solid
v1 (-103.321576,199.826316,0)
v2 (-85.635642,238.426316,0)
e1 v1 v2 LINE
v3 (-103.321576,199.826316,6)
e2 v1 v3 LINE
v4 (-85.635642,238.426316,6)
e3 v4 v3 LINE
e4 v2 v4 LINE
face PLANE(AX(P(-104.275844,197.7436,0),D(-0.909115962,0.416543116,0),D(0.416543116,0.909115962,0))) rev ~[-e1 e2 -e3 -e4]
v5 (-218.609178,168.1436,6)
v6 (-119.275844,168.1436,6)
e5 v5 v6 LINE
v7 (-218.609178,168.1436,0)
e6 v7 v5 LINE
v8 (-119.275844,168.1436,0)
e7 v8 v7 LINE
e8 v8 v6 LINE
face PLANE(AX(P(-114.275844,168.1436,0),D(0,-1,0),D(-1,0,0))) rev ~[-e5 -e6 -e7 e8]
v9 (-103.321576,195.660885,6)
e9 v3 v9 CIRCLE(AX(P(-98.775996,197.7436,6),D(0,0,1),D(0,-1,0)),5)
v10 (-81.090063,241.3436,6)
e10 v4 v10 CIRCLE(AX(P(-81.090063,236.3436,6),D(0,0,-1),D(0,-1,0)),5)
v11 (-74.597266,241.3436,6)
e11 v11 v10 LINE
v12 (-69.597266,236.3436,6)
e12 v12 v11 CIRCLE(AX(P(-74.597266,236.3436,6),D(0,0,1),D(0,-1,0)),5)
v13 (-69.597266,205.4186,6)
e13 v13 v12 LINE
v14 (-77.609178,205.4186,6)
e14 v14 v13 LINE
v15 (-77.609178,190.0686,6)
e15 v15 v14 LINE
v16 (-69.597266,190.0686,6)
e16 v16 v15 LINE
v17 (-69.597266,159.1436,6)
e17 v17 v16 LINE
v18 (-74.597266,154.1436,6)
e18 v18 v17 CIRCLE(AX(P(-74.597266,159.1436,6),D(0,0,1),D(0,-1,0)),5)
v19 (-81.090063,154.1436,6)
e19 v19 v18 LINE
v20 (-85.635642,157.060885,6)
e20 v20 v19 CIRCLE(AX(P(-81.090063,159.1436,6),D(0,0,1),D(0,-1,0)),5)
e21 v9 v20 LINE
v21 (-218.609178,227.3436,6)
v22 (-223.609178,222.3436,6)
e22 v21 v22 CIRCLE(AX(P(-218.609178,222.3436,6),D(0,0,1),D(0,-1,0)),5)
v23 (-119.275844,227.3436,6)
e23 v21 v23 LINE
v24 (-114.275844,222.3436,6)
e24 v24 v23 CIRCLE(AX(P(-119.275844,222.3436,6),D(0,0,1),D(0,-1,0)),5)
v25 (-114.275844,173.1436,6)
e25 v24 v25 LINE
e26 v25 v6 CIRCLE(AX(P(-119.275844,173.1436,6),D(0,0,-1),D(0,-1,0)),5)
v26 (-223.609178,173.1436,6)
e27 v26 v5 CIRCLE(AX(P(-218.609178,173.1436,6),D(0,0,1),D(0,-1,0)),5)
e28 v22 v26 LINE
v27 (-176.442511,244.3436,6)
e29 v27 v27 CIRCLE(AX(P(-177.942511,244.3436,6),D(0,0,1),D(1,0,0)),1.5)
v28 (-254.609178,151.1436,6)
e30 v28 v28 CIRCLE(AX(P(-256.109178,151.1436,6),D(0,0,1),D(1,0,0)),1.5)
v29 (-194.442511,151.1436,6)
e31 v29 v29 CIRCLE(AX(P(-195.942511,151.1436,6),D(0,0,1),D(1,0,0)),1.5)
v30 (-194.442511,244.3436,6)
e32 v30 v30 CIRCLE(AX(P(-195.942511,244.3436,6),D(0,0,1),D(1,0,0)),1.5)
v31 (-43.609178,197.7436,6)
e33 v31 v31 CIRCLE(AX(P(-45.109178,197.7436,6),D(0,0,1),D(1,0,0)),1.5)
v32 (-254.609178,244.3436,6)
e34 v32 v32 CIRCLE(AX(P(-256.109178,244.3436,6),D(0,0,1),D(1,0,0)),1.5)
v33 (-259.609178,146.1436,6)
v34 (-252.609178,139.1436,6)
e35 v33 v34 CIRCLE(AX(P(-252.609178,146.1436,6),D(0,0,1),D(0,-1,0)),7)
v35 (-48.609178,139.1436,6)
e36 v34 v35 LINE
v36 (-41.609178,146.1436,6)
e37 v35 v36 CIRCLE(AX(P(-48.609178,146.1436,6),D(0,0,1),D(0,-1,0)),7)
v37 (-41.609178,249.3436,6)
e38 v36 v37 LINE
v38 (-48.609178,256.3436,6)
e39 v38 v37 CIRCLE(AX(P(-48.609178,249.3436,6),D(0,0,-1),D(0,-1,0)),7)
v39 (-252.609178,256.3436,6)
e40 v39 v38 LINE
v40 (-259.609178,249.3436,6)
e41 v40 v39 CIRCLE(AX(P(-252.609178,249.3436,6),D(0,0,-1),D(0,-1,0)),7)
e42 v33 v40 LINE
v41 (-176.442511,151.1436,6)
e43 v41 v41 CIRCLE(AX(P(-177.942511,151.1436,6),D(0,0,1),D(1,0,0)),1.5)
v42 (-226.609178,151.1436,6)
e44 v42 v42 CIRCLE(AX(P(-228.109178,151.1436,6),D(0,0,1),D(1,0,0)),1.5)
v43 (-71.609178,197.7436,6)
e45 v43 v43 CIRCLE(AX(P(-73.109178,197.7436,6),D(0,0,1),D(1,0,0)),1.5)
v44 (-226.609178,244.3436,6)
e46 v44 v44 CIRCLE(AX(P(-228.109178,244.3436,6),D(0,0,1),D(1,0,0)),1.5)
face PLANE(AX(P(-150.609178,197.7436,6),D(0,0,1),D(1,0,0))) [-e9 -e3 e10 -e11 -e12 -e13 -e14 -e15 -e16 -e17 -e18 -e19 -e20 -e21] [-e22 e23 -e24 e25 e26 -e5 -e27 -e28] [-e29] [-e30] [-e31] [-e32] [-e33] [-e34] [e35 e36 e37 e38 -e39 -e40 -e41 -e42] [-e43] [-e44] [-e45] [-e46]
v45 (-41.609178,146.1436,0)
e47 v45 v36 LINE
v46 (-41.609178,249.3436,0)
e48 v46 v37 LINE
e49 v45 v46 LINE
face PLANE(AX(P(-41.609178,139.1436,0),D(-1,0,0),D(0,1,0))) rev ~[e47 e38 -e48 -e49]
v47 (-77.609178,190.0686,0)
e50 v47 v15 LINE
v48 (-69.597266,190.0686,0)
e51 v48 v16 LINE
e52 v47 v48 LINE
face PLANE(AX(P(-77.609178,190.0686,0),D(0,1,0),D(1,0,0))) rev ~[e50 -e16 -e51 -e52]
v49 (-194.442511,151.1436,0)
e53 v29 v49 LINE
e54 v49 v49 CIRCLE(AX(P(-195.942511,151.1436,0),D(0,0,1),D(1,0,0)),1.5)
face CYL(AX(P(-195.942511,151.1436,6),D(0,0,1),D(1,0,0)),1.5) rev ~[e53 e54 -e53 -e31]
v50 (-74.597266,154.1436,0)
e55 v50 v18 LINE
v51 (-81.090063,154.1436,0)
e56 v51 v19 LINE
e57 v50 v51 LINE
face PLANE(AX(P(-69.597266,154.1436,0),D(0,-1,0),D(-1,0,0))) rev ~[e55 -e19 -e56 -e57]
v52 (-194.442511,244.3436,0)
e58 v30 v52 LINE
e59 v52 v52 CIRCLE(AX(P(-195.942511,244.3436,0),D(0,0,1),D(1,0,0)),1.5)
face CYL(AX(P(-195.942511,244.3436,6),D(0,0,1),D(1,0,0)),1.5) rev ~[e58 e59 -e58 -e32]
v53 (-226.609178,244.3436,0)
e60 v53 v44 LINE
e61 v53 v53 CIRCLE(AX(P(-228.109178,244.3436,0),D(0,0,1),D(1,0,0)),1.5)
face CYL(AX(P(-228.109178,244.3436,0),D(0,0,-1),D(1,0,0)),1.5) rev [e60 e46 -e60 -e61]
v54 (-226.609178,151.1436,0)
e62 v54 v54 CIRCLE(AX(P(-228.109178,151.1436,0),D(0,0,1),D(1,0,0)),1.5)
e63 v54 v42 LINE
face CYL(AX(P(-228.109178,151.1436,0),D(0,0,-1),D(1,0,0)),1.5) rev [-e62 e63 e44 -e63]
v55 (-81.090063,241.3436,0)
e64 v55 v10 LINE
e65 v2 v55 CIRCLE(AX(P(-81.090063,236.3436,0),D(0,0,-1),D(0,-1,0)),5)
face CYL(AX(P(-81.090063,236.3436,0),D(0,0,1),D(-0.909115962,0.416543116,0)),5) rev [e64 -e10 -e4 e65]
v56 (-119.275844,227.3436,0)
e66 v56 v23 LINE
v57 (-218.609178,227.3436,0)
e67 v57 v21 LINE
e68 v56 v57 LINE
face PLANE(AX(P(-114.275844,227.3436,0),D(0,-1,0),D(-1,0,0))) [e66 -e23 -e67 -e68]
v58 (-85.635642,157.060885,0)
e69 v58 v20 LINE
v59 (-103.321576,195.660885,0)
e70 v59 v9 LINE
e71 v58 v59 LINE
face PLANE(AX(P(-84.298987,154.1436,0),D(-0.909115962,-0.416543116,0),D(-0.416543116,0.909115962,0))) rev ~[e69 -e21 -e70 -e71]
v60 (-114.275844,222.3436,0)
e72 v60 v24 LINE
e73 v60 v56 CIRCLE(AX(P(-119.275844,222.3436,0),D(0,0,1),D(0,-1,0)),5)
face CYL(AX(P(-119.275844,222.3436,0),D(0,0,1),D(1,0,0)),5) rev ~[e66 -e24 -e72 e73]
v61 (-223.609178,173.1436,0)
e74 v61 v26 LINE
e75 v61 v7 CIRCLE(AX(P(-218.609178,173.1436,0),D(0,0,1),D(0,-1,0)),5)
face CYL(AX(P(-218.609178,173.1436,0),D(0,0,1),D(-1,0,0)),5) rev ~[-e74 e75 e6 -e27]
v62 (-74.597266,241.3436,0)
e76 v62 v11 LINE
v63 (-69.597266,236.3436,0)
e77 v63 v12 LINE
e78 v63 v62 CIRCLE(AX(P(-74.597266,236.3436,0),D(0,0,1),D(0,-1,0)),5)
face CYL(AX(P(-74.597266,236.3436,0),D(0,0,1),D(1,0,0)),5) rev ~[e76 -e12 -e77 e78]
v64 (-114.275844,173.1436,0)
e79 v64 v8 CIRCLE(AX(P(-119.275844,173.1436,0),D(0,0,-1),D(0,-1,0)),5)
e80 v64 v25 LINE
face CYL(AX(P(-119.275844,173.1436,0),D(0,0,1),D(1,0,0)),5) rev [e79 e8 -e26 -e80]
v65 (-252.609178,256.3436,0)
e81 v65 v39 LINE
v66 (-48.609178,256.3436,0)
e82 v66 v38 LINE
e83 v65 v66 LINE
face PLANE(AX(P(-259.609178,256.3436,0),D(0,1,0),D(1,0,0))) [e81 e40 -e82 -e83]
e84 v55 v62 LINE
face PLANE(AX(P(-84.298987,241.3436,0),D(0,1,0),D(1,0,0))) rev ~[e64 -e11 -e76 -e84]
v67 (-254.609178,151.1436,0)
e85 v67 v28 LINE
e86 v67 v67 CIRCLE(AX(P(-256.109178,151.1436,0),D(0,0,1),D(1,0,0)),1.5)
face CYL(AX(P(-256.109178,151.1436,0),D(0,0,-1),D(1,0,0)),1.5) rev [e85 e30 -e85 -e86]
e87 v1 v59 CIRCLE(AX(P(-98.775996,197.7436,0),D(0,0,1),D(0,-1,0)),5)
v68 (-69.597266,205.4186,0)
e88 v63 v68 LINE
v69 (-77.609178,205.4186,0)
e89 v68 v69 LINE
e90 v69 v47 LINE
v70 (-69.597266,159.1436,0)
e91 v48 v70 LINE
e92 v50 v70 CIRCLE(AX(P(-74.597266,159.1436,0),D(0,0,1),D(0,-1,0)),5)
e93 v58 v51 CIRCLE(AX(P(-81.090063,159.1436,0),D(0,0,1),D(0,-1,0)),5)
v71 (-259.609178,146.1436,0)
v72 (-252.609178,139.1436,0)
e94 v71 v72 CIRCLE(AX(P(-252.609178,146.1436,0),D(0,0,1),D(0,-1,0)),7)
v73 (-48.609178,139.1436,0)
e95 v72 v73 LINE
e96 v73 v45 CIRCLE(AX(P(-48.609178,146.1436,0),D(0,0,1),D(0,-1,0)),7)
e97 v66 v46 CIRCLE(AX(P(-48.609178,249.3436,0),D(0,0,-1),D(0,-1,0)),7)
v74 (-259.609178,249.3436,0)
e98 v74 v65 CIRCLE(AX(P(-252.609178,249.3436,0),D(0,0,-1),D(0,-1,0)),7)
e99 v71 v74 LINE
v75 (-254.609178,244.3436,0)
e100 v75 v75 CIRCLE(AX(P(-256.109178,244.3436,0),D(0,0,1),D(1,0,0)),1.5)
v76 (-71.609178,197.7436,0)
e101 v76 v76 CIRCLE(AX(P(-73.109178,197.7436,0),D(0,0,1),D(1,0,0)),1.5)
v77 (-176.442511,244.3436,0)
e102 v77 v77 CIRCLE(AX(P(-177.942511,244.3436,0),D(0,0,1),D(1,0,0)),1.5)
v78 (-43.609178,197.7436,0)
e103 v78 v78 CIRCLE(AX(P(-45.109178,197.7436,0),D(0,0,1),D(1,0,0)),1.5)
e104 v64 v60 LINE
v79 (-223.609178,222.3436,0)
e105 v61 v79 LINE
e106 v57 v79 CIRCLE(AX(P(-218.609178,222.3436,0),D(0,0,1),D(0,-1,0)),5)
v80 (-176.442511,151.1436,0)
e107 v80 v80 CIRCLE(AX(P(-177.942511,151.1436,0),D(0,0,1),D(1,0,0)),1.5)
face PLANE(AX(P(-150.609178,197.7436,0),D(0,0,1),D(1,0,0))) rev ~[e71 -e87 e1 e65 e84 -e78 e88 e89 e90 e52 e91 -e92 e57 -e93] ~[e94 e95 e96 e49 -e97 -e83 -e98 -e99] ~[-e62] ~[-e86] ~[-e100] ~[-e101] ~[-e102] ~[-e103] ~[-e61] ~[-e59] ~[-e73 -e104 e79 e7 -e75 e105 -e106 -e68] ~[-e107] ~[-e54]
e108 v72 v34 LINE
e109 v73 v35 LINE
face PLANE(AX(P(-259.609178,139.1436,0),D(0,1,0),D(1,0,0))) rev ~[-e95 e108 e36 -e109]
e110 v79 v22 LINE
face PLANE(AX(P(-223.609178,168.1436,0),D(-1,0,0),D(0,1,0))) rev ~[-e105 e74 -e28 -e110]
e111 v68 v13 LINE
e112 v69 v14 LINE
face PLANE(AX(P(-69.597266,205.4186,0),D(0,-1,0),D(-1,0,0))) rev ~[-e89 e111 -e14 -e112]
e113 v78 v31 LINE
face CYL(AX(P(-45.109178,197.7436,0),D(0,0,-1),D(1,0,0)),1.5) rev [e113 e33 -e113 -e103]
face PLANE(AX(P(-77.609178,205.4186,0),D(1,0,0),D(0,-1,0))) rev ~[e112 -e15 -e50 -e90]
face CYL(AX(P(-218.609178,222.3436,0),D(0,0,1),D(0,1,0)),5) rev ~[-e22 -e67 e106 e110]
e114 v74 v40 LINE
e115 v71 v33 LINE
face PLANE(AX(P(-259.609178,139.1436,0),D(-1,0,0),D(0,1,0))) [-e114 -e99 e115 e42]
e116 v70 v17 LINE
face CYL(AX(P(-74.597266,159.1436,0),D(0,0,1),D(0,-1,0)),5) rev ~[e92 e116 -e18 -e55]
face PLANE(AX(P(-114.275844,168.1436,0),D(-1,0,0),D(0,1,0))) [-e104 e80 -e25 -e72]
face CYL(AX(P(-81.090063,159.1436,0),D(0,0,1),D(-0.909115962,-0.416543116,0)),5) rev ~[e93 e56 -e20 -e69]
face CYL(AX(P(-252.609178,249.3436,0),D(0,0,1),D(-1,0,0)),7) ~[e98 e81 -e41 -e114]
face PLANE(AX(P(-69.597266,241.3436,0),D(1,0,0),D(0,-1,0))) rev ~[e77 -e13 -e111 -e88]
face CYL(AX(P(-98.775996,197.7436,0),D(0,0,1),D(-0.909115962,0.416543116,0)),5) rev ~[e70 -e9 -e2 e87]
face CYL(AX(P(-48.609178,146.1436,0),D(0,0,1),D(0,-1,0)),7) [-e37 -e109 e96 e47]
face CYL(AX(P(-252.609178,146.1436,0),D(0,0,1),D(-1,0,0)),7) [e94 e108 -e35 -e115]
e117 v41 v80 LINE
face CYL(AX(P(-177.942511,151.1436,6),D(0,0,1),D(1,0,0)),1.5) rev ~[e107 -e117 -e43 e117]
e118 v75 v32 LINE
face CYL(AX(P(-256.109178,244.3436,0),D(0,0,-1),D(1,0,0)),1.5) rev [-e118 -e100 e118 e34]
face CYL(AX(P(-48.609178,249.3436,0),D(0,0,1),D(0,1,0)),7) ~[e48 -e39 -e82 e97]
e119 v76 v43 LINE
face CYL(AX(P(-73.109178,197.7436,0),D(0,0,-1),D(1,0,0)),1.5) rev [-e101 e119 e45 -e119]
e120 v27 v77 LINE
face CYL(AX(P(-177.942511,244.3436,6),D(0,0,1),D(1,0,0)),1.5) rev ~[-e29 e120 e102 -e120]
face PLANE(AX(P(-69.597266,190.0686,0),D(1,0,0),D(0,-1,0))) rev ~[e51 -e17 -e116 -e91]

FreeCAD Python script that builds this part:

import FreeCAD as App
import Part
import Sketcher

V = App.Vector


def edges_at(feature, points):
    """Names of the edges that pass closest to the given points."""
    edges = feature.Shape.Edges
    near = lambda p: min(range(len(edges)), key=lambda i: edges[i].distToShape(Part.Vertex(*p))[0])
    return sorted({f"Edge{near(p) + 1}" for p in points})

doc = App.newDocument("Part")
params = doc.addObject("Spreadsheet::Sheet", "Params")
for row, (alias, value) in enumerate([
    ("sketch1_diameter", "3 mm"),
    ("sketch1_width", "218 mm"),
    ("sketch1_height", "117.2 mm"),
    ("pad1_length", "6 mm"),
    ("sketch2_diameter", "3 mm"),
    ("pocket1_length", "6 mm"),
    ("fillet_radius", "7 mm"),
    ("sketch3_height", "59.2 mm"),
    ("pocket2_length", "10 mm"),
    ("fillet2_radius", "5 mm"),
    ("sketch4_height", "15.35 mm"),
    ("pocket3_length", "10 mm"),
    ("fillet3_radius", "5 mm"),
], start=1):
    params.set(f"A{row}", alias)
    params.set(f"B{row}", "=" + value)
    params.setAlias(f"B{row}", alias)

body = doc.addObject("PartDesign::Body", "Body")

# Sketch on XY plane
sketch1 = doc.addObject("Sketcher::SketchObject", "Sketch")
body.addObject(sketch1)
sketch1.AttachmentSupport = (doc.XY_Plane, [""])
sketch1.MapMode = "FlatFace"
sketch1.addGeometry([
    Part.LineSegment(V(-259.609178, 256.3436, 0), V(-259.609178, 139.1436, 0)),  # 0
    Part.LineSegment(V(-259.609178, 139.1436, 0), V(-41.609178, 139.1436, 0)),  # 1
    Part.LineSegment(V(-41.609178, 139.1436, 0), V(-41.609178, 256.3436, 0)),  # 2
    Part.LineSegment(V(-41.609178, 256.3436, 0), V(-259.609178, 256.3436, 0)),  # 3
    Part.Circle(V(-256.109178, 151.1436, 0), V(0, 0, 1), 1.5),  # 4
    Part.Circle(V(-228.109178, 151.1436, 0), V(0, 0, 1), 1.5),  # 5
    Part.Circle(V(-73.109178, 197.7436, 0), V(0, 0, 1), 1.5),  # 6
    Part.Circle(V(-45.109178, 197.7436, 0), V(0, 0, 1), 1.5),  # 7
    Part.Circle(V(-256.109178, 244.3436, 0), V(0, 0, 1), 1.5),  # 8
    Part.Circle(V(-228.109178, 244.3436, 0), V(0, 0, 1), 1.5),  # 9
], False)
sketch1.addConstraint([
    Sketcher.Constraint("Coincident", 0, 2, 1, 1),
    Sketcher.Constraint("Coincident", 1, 2, 2, 1),
    Sketcher.Constraint("Coincident", 2, 2, 3, 1),
    Sketcher.Constraint("Coincident", 3, 2, 0, 1),
    Sketcher.Constraint("Vertical", 0),
    Sketcher.Constraint("Horizontal", 1),
    Sketcher.Constraint("Vertical", 2),
    Sketcher.Constraint("Horizontal", 3),
    Sketcher.Constraint("Equal", 4, 5),
    Sketcher.Constraint("Equal", 5, 6),
    Sketcher.Constraint("Equal", 6, 7),
    Sketcher.Constraint("Equal", 7, 8),
    Sketcher.Constraint("Equal", 8, 9),
    Sketcher.Constraint("Horizontal", 4, 3, 5, 3),
    Sketcher.Constraint("Horizontal", 6, 3, 7, 3),
    Sketcher.Constraint("Horizontal", 8, 3, 9, 3),
    Sketcher.Constraint("Vertical", 4, 3, 8, 3),
    Sketcher.Constraint("Vertical", 5, 3, 9, 3),
    Sketcher.Constraint("Diameter", 4, 3.0),
    Sketcher.Constraint("DistanceX", 1, 1, 1, 2, 218.0),
    Sketcher.Constraint("DistanceY", 0, 2, 0, 1, 117.2),
    Sketcher.Constraint("DistanceX", 4, 3, 5, 3, 28.0),
    Sketcher.Constraint("DistanceX", 5, 3, 6, 3, 155.0),
    Sketcher.Constraint("DistanceX", 6, 3, 7, 3, 28.0),
    Sketcher.Constraint("DistanceY", 0, 2, 4, 3, 12.0),
    Sketcher.Constraint("DistanceY", 9, 3, 2, 2, 12.0),
    Sketcher.Constraint("DistanceY", 5, 3, 6, 3, 46.6),
    Sketcher.Constraint("DistanceX", 0, 2, 4, 3, 3.5),
    Sketcher.Constraint("DistanceY", -1, 1, 4, 3, 151.1436),
    Sketcher.Constraint("DistanceX", 4, 3, -1, 1, 256.109178),
])
sketch1.setExpression("Constraints[18]", "Params.sketch1_diameter")
sketch1.setExpression("Constraints[19]", "Params.sketch1_width")
sketch1.setExpression("Constraints[20]", "Params.sketch1_height")
pad1 = doc.addObject("PartDesign::Pad", "Pad")
body.addObject(pad1)
pad1.Profile = sketch1
pad1.setExpression("Length", "Params.pad1_length")

# Sketch on XY plane
sketch2 = doc.addObject("Sketcher::SketchObject", "Sketch001")
body.addObject(sketch2)
sketch2.AttachmentSupport = (doc.XY_Plane, [""])
sketch2.MapMode = "FlatFace"
sketch2.AttachmentOffset = App.Placement(V(0, 0, 6), App.Rotation())
sketch2.addGeometry([
    Part.Circle(V(-195.942511, 151.1436, 0), V(0, 0, 1), 1.5),
    Part.Circle(V(-177.942511, 151.1436, 0), V(0, 0, 1), 1.5),
    Part.Circle(V(-195.942511, 244.3436, 0), V(0, 0, 1), 1.5),
    Part.Circle(V(-177.942511, 244.3436, 0), V(0, 0, 1), 1.5),
], False)
sketch2.addConstraint([
    Sketcher.Constraint("Equal", 0, 1),
    Sketcher.Constraint("Equal", 1, 2),
    Sketcher.Constraint("Equal", 2, 3),
    Sketcher.Constraint("Horizontal", 0, 3, 1, 3),
    Sketcher.Constraint("Horizontal", 2, 3, 3, 3),
    Sketcher.Constraint("Vertical", 0, 3, 2, 3),
    Sketcher.Constraint("Vertical", 1, 3, 3, 3),
    Sketcher.Constraint("Diameter", 0, 3.0),
    Sketcher.Constraint("DistanceX", 0, 3, 1, 3, 18.0),
    Sketcher.Constraint("DistanceY", 0, 3, 2, 3, 93.2),
    Sketcher.Constraint("DistanceY", -1, 1, 0, 3, 151.1436),
    Sketcher.Constraint("DistanceX", 0, 3, -1, 1, 195.942511),
])
sketch2.setExpression("Constraints[7]", "Params.sketch2_diameter")
pocket1 = doc.addObject("PartDesign::Pocket", "Pocket")
body.addObject(pocket1)
pocket1.Profile = sketch2
pocket1.setExpression("Length", "Params.pocket1_length")
doc.recompute()

fillet = doc.addObject("PartDesign::Fillet", "Fillet")
body.addObject(fillet)
fillet.Base = (pocket1, edges_at(pocket1, [
    (-259.609, 256.344, 3),
    (-41.609, 256.344, 3),
    (-41.609, 139.144, 3),
    (-259.609, 139.144, 3),
]))
fillet.setExpression("Radius", "Params.fillet_radius")

# Sketch on XY plane
sketch3 = doc.addObject("Sketcher::SketchObject", "Sketch002")
body.addObject(sketch3)
sketch3.AttachmentSupport = (doc.XY_Plane, [""])
sketch3.MapMode = "FlatFace"
sketch3.addGeometry([
    Part.LineSegment(V(-114.275844, 227.3436, 0), V(-114.275844, 168.1436, 0)),
    Part.LineSegment(V(-114.275844, 168.1436, 0), V(-223.609178, 168.1436, 0)),
    Part.LineSegment(V(-223.609178, 168.1436, 0), V(-223.609178, 227.3436, 0)),
    Part.LineSegment(V(-223.609178, 227.3436, 0), V(-114.275844, 227.3436, 0)),
], False)
sketch3.addConstraint([
    Sketcher.Constraint("Coincident", 0, 2, 1, 1),
    Sketcher.Constraint("Coincident", 1, 2, 2, 1),
    Sketcher.Constraint("Coincident", 2, 2, 3, 1),
    Sketcher.Constraint("Coincident", 3, 2, 0, 1),
    Sketcher.Constraint("Vertical", 0),
    Sketcher.Constraint("Horizontal", 1),
    Sketcher.Constraint("Vertical", 2),
    Sketcher.Constraint("Horizontal", 3),
    Sketcher.Constraint("DistanceY", 0, 2, 0, 1, 59.2),
    Sketcher.Constraint("DistanceY", -1, 1, 0, 2, 168.1436),
    Sketcher.Constraint("DistanceX", 1, 2, 1, 1, 109.333333),
    Sketcher.Constraint("DistanceX", 0, 2, -1, 1, 114.275844),
])
sketch3.setExpression("Constraints[8]", "Params.sketch3_height")
pocket2 = doc.addObject("PartDesign::Pocket", "Pocket001")
body.addObject(pocket2)
pocket2.Profile = sketch3
pocket2.setExpression("Length", "Params.pocket2_length")
pocket2.Reversed = True
doc.recompute()

fillet2 = doc.addObject("PartDesign::Fillet", "Fillet001")
body.addObject(fillet2)
fillet2.Base = (pocket2, edges_at(pocket2, [
    (-114.276, 168.144, 3),
    (-114.276, 227.344, 3),
    (-223.609, 227.344, 3),
    (-223.609, 168.144, 3),
]))
fillet2.setExpression("Radius", "Params.fillet2_radius")

# Sketch on XY plane
sketch4 = doc.addObject("Sketcher::SketchObject", "Sketch003")
body.addObject(sketch4)
sketch4.AttachmentSupport = (doc.XY_Plane, [""])
sketch4.MapMode = "FlatFace"
sketch4.addGeometry([
    Part.LineSegment(V(-84.298987, 241.3436, 0), V(-69.597266, 241.3436, 0)),  # 0
    Part.LineSegment(V(-69.597266, 241.3436, 0), V(-69.597266, 205.4186, 0)),  # 1
    Part.LineSegment(V(-69.597266, 205.4186, 0), V(-77.609178, 205.4186, 0)),  # 2
    Part.LineSegment(V(-77.609178, 205.4186, 0), V(-77.609178, 190.0686, 0)),  # 3
    Part.LineSegment(V(-77.609178, 190.0686, 0), V(-69.597266, 190.0686, 0)),  # 4
    Part.LineSegment(V(-69.597266, 190.0686, 0), V(-69.597266, 154.1436, 0)),  # 5
    Part.LineSegment(V(-69.597266, 154.1436, 0), V(-84.298987, 154.1436, 0)),  # 6
    Part.LineSegment(V(-84.298987, 154.1436, 0), V(-104.275844, 197.7436, 0)),  # 7
    Part.LineSegment(V(-104.275844, 197.7436, 0), V(-84.298987, 241.3436, 0)),  # 8
], False)
sketch4.addConstraint([
    Sketcher.Constraint("Coincident", 0, 2, 1, 1),
    Sketcher.Constraint("Coincident", 1, 2, 2, 1),
    Sketcher.Constraint("Coincident", 2, 2, 3, 1),
    Sketcher.Constraint("Coincident", 3, 2, 4, 1),
    Sketcher.Constraint("Coincident", 4, 2, 5, 1),
    Sketcher.Constraint("Coincident", 5, 2, 6, 1),
    Sketcher.Constraint("Coincident", 6, 2, 7, 1),
    Sketcher.Constraint("Coincident", 7, 2, 8, 1),
    Sketcher.Constraint("Coincident", 8, 2, 0, 1),
    Sketcher.Constraint("Horizontal", 0),
    Sketcher.Constraint("Vertical", 1),
    Sketcher.Constraint("Horizontal", 2),
    Sketcher.Constraint("Vertical", 3),
    Sketcher.Constraint("Horizontal", 4),
    Sketcher.Constraint("Vertical", 5),
    Sketcher.Constraint("Horizontal", 6),
    Sketcher.Constraint("Vertical", 1, 2, 4, 2),
    Sketcher.Constraint("Vertical", 6, 2, 8, 2),
    Sketcher.Constraint("Equal", 1, 5),
    Sketcher.Constraint("Equal", 7, 8),
    Sketcher.Constraint("DistanceY", 3, 2, 3, 1, 15.35),
    Sketcher.Constraint("DistanceY", 5, 2, 0, 2, 87.2),
    Sketcher.Constraint("DistanceX", 0, 1, 0, 2, 14.701721),
    Sketcher.Constraint("DistanceX", 2, 2, 2, 1, 8.011912),
    Sketcher.Constraint("DistanceY", -1, 1, 0, 2, 241.3436),
    Sketcher.Constraint("Distance", 7, 47.958678),
    Sketcher.Constraint("DistanceX", 0, 2, -1, 1, 69.597266),
])
sketch4.setExpression("Constraints[20]", "Params.sketch4_height")
pocket3 = doc.addObject("PartDesign::Pocket", "Pocket002")
body.addObject(pocket3)
pocket3.Profile = sketch4
pocket3.setExpression("Length", "Params.pocket3_length")
pocket3.Reversed = True
doc.recompute()

fillet3 = doc.addObject("PartDesign::Fillet", "Fillet002")
body.addObject(fillet3)
fillet3.Base = (pocket3, edges_at(pocket3, [
    (-69.597, 241.344, 3),
    (-84.299, 241.344, 3),
    (-104.276, 197.744, 3),
    (-84.299, 154.144, 3),
    (-69.597, 154.144, 3),
]))
fillet3.setExpression("Radius", "Params.fillet3_radius")

doc.recompute()
